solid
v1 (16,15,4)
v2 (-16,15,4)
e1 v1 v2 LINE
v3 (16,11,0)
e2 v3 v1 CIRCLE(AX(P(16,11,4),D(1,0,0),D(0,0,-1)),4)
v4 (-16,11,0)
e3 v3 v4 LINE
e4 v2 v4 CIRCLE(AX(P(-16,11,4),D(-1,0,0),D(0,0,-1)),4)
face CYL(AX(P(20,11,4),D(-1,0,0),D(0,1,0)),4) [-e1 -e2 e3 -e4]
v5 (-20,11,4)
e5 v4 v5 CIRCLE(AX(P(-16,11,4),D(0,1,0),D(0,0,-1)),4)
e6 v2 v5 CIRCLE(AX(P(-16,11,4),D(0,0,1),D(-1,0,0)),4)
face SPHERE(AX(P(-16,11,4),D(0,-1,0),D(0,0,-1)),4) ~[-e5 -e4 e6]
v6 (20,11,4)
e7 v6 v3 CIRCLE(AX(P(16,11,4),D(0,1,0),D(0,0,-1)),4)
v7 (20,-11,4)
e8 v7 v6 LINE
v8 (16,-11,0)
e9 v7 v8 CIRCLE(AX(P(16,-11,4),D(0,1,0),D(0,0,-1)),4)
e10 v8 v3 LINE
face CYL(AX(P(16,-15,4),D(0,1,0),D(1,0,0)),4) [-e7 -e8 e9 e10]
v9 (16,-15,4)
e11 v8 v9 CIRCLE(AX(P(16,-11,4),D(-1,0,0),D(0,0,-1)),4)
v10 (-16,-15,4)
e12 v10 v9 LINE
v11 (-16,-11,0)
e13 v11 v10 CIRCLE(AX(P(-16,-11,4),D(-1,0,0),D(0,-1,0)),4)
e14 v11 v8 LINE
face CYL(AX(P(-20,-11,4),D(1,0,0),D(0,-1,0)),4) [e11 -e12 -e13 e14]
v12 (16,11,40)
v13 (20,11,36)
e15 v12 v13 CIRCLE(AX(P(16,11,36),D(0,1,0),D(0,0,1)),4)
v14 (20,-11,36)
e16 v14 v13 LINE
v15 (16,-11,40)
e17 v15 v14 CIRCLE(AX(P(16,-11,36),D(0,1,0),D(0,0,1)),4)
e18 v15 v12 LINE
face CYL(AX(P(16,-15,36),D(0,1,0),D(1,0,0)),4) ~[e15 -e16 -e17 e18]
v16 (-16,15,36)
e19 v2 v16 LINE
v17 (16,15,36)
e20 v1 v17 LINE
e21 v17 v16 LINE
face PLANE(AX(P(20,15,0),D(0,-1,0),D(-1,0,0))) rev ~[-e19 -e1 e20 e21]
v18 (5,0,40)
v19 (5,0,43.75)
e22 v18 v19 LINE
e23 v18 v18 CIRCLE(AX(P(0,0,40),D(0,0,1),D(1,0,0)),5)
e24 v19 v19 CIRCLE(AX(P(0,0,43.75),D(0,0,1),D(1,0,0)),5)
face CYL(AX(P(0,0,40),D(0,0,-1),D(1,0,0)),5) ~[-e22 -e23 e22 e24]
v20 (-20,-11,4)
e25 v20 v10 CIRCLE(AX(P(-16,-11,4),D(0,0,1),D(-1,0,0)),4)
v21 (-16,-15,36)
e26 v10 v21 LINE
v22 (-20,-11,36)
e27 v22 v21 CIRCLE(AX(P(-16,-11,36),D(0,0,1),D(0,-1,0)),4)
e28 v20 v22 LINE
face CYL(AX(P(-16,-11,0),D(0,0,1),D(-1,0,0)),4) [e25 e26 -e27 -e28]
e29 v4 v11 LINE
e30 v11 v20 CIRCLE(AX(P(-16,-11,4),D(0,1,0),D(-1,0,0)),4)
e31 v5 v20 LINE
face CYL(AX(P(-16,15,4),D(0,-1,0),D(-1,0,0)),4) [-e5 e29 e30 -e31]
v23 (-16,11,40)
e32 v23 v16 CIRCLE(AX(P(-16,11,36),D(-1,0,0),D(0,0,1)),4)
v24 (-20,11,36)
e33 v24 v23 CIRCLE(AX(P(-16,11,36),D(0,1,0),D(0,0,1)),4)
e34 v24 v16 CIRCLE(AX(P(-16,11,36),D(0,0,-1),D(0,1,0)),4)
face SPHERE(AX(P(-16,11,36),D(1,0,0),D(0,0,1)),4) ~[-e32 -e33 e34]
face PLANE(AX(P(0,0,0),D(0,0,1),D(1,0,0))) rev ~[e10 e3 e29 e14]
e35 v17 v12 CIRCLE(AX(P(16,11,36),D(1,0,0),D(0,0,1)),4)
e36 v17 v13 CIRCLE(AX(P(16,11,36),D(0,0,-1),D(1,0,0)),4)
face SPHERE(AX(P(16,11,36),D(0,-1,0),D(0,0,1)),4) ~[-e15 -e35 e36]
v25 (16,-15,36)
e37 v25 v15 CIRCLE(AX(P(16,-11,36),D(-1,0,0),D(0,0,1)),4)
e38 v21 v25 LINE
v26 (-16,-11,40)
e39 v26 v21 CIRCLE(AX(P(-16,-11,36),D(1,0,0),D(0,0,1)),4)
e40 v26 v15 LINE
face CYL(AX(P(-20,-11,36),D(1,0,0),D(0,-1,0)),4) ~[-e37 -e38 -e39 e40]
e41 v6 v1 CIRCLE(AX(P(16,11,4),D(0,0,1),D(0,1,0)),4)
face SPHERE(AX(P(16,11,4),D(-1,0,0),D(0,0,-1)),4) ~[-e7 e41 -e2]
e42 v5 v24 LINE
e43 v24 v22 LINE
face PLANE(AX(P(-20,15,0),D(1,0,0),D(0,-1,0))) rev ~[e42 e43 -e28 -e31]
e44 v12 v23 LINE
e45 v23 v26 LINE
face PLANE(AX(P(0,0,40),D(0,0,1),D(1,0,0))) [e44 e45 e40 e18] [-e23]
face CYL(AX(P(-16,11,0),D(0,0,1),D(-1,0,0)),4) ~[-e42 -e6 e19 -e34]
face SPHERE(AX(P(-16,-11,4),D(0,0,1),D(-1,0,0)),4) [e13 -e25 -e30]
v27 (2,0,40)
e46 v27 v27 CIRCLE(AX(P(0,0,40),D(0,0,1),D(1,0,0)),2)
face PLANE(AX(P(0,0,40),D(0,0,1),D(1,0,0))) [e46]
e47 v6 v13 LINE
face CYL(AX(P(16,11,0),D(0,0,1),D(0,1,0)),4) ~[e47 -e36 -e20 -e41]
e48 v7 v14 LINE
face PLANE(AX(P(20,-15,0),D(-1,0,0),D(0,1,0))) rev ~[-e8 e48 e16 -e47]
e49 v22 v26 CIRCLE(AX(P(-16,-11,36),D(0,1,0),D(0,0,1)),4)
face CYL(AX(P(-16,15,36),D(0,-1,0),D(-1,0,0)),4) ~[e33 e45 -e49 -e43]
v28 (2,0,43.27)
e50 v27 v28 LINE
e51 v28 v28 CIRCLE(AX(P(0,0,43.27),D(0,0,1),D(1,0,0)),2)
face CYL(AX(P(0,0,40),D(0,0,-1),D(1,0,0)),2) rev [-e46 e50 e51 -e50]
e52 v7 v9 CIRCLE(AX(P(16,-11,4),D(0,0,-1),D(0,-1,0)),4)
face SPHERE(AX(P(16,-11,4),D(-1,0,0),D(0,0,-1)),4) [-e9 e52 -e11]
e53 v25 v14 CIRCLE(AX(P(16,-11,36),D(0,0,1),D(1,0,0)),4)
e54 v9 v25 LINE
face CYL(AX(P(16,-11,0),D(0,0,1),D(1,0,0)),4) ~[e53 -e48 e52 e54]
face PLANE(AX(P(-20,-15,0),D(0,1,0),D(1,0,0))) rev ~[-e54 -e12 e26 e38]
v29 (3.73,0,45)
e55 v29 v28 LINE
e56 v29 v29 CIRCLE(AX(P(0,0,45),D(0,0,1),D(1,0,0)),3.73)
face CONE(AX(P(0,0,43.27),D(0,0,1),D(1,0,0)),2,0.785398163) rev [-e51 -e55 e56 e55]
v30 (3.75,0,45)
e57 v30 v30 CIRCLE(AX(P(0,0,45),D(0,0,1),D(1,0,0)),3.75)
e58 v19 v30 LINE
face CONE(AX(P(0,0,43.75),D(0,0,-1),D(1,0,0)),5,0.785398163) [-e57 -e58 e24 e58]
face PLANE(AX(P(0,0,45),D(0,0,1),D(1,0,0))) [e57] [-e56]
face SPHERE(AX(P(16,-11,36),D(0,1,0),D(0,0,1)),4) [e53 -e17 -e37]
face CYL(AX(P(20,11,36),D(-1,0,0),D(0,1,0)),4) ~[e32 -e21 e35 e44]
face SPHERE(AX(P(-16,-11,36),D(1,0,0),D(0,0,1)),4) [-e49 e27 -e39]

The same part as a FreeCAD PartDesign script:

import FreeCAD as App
import Part
import Sketcher
Q = App.Units.Quantity


def edges_at(feature, points):
    """Names of the edges that pass closest to the given points."""
    edges = feature.Shape.Edges
    near = lambda p: min(range(len(edges)), key=lambda i: edges[i].distToShape(Part.Vertex(*p))[0])
    return sorted({f"Edge{near(p) + 1}" for p in points})

doc = App.newDocument("Part")
params = doc.addObject("Spreadsheet::Sheet", "Params")
for row, (alias, value) in enumerate([
    ("sketch1_width", "40 mm"),
    ("sketch1_height", "30 mm"),
    ("pad1_length", "40 mm"),
    ("fillet_radius", "4 mm"),
    ("sketch2_diameter", "10 mm"),
    ("pad2_length", "5 mm"),
    ("sketch3_diameter", "4 mm"),
    ("pocket1_length", "5 mm"),
    ("chamfer_size", "1.25 mm"),
    ("chamfer2_size", "1.73 mm"),
], start=1):
    params.set(f"A{row}", alias)
    params.set(f"B{row}", "=" + value)
    params.setAlias(f"B{row}", alias)

body = doc.addObject("PartDesign::Body", "Body")

# Sketch on XY plane
sketch1 = body.newObject("Sketcher::SketchObject", "Sketch")
sketch1.AttachmentSupport = (doc.getObject("XY_Plane"), [""])
sketch1.MapMode = "FlatFace"
sketch1.addGeometry([
    Part.LineSegment(App.Vector(-20, 15, 0), App.Vector(-20, -15, 0)),
    Part.LineSegment(App.Vector(-20, -15, 0), App.Vector(20, -15, 0)),
    Part.LineSegment(App.Vector(20, -15, 0), App.Vector(20, 15, 0)),
    Part.LineSegment(App.Vector(20, 15, 0), App.Vector(-20, 15, 0)),
], False)
sketch1.addConstraint([
    Sketcher.Constraint("Coincident", 0, 2, 1, 1),
    Sketcher.Constraint("Coincident", 1, 2, 2, 1),
    Sketcher.Constraint("Coincident", 2, 2, 3, 1),
    Sketcher.Constraint("Coincident", 3, 2, 0, 1),
    Sketcher.Constraint("Vertical", 0),
    Sketcher.Constraint("Horizontal", 1),
    Sketcher.Constraint("Vertical", 2),
    Sketcher.Constraint("Horizontal", 3),
    Sketcher.Constraint("Symmetric", 0, 2, 2, 2, -1, 1),
    Sketcher.Constraint("DistanceX", 1, 1, 1, 2, Q("40 mm")),
    Sketcher.Constraint("DistanceY", 0, 2, 0, 1, Q("30 mm")),
])
sketch1.setExpression("Constraints[9]", "Params.sketch1_width")
sketch1.setExpression("Constraints[10]", "Params.sketch1_height")
pad1 = body.newObject("PartDesign::Pad", "Pad")
pad1.Profile = sketch1
pad1.setExpression("Length", "Params.pad1_length")
doc.recompute()

fillet = body.newObject("PartDesign::Fillet", "Fillet")
fillet.Base = (pad1, ["Edge1"])
fillet.UseAllEdges = True
fillet.setExpression("Radius", "Params.fillet_radius")

# Sketch on XY plane
sketch2 = body.newObject("Sketcher::SketchObject", "Sketch001")
sketch2.AttachmentSupport = (doc.getObject("XY_Plane"), [""])
sketch2.MapMode = "FlatFace"
sketch2.AttachmentOffset = App.Placement(App.Vector(0, 0, 40), App.Rotation())
sketch2.addGeometry(Part.Circle(App.Vector(0, 0, 0), App.Vector(0, 0, 1), 5), False)
sketch2.addConstraint([
    Sketcher.Constraint("Coincident", 0, 3, -1, 1),
    Sketcher.Constraint("Diameter", 0, Q("10 mm")),
])
sketch2.setExpression("Constraints[1]", "Params.sketch2_diameter")
pad2 = body.newObject("PartDesign::Pad", "Pad001")
pad2.Profile = sketch2
pad2.setExpression("Length", "Params.pad2_length")

# Sketch on XY plane
sketch3 = body.newObject("Sketcher::SketchObject", "Sketch002")
sketch3.AttachmentSupport = (doc.getObject("XY_Plane"), [""])
sketch3.MapMode = "FlatFace"
sketch3.AttachmentOffset = App.Placement(App.Vector(0, 0, 40), App.Rotation())
sketch3.addGeometry(Part.Circle(App.Vector(0, 0, 0), App.Vector(0, 0, 1), 2), False)
sketch3.addConstraint([
    Sketcher.Constraint("Coincident", 0, 3, -1, 1),
    Sketcher.Constraint("Diameter", 0, Q("4 mm")),
])
sketch3.setExpression("Constraints[1]", "Params.sketch3_diameter")
pocket1 = body.newObject("PartDesign::Pocket", "Pocket")
pocket1.Profile = sketch3
pocket1.setExpression("Length", "Params.pocket1_length")
pocket1.Reversed = True
doc.recompute()

chamfer = body.newObject("PartDesign::Chamfer", "Chamfer")
chamfer.Base = (pocket1, edges_at(pocket1, [(-5, 0, 45)]))
chamfer.setExpression("Size", "Params.chamfer_size")
doc.recompute()

chamfer2 = body.newObject("PartDesign::Chamfer", "Chamfer001")
chamfer2.Base = (chamfer, edges_at(chamfer, [(-2, 0, 45)]))
chamfer2.setExpression("Size", "Params.chamfer2_size")

doc.recompute()
